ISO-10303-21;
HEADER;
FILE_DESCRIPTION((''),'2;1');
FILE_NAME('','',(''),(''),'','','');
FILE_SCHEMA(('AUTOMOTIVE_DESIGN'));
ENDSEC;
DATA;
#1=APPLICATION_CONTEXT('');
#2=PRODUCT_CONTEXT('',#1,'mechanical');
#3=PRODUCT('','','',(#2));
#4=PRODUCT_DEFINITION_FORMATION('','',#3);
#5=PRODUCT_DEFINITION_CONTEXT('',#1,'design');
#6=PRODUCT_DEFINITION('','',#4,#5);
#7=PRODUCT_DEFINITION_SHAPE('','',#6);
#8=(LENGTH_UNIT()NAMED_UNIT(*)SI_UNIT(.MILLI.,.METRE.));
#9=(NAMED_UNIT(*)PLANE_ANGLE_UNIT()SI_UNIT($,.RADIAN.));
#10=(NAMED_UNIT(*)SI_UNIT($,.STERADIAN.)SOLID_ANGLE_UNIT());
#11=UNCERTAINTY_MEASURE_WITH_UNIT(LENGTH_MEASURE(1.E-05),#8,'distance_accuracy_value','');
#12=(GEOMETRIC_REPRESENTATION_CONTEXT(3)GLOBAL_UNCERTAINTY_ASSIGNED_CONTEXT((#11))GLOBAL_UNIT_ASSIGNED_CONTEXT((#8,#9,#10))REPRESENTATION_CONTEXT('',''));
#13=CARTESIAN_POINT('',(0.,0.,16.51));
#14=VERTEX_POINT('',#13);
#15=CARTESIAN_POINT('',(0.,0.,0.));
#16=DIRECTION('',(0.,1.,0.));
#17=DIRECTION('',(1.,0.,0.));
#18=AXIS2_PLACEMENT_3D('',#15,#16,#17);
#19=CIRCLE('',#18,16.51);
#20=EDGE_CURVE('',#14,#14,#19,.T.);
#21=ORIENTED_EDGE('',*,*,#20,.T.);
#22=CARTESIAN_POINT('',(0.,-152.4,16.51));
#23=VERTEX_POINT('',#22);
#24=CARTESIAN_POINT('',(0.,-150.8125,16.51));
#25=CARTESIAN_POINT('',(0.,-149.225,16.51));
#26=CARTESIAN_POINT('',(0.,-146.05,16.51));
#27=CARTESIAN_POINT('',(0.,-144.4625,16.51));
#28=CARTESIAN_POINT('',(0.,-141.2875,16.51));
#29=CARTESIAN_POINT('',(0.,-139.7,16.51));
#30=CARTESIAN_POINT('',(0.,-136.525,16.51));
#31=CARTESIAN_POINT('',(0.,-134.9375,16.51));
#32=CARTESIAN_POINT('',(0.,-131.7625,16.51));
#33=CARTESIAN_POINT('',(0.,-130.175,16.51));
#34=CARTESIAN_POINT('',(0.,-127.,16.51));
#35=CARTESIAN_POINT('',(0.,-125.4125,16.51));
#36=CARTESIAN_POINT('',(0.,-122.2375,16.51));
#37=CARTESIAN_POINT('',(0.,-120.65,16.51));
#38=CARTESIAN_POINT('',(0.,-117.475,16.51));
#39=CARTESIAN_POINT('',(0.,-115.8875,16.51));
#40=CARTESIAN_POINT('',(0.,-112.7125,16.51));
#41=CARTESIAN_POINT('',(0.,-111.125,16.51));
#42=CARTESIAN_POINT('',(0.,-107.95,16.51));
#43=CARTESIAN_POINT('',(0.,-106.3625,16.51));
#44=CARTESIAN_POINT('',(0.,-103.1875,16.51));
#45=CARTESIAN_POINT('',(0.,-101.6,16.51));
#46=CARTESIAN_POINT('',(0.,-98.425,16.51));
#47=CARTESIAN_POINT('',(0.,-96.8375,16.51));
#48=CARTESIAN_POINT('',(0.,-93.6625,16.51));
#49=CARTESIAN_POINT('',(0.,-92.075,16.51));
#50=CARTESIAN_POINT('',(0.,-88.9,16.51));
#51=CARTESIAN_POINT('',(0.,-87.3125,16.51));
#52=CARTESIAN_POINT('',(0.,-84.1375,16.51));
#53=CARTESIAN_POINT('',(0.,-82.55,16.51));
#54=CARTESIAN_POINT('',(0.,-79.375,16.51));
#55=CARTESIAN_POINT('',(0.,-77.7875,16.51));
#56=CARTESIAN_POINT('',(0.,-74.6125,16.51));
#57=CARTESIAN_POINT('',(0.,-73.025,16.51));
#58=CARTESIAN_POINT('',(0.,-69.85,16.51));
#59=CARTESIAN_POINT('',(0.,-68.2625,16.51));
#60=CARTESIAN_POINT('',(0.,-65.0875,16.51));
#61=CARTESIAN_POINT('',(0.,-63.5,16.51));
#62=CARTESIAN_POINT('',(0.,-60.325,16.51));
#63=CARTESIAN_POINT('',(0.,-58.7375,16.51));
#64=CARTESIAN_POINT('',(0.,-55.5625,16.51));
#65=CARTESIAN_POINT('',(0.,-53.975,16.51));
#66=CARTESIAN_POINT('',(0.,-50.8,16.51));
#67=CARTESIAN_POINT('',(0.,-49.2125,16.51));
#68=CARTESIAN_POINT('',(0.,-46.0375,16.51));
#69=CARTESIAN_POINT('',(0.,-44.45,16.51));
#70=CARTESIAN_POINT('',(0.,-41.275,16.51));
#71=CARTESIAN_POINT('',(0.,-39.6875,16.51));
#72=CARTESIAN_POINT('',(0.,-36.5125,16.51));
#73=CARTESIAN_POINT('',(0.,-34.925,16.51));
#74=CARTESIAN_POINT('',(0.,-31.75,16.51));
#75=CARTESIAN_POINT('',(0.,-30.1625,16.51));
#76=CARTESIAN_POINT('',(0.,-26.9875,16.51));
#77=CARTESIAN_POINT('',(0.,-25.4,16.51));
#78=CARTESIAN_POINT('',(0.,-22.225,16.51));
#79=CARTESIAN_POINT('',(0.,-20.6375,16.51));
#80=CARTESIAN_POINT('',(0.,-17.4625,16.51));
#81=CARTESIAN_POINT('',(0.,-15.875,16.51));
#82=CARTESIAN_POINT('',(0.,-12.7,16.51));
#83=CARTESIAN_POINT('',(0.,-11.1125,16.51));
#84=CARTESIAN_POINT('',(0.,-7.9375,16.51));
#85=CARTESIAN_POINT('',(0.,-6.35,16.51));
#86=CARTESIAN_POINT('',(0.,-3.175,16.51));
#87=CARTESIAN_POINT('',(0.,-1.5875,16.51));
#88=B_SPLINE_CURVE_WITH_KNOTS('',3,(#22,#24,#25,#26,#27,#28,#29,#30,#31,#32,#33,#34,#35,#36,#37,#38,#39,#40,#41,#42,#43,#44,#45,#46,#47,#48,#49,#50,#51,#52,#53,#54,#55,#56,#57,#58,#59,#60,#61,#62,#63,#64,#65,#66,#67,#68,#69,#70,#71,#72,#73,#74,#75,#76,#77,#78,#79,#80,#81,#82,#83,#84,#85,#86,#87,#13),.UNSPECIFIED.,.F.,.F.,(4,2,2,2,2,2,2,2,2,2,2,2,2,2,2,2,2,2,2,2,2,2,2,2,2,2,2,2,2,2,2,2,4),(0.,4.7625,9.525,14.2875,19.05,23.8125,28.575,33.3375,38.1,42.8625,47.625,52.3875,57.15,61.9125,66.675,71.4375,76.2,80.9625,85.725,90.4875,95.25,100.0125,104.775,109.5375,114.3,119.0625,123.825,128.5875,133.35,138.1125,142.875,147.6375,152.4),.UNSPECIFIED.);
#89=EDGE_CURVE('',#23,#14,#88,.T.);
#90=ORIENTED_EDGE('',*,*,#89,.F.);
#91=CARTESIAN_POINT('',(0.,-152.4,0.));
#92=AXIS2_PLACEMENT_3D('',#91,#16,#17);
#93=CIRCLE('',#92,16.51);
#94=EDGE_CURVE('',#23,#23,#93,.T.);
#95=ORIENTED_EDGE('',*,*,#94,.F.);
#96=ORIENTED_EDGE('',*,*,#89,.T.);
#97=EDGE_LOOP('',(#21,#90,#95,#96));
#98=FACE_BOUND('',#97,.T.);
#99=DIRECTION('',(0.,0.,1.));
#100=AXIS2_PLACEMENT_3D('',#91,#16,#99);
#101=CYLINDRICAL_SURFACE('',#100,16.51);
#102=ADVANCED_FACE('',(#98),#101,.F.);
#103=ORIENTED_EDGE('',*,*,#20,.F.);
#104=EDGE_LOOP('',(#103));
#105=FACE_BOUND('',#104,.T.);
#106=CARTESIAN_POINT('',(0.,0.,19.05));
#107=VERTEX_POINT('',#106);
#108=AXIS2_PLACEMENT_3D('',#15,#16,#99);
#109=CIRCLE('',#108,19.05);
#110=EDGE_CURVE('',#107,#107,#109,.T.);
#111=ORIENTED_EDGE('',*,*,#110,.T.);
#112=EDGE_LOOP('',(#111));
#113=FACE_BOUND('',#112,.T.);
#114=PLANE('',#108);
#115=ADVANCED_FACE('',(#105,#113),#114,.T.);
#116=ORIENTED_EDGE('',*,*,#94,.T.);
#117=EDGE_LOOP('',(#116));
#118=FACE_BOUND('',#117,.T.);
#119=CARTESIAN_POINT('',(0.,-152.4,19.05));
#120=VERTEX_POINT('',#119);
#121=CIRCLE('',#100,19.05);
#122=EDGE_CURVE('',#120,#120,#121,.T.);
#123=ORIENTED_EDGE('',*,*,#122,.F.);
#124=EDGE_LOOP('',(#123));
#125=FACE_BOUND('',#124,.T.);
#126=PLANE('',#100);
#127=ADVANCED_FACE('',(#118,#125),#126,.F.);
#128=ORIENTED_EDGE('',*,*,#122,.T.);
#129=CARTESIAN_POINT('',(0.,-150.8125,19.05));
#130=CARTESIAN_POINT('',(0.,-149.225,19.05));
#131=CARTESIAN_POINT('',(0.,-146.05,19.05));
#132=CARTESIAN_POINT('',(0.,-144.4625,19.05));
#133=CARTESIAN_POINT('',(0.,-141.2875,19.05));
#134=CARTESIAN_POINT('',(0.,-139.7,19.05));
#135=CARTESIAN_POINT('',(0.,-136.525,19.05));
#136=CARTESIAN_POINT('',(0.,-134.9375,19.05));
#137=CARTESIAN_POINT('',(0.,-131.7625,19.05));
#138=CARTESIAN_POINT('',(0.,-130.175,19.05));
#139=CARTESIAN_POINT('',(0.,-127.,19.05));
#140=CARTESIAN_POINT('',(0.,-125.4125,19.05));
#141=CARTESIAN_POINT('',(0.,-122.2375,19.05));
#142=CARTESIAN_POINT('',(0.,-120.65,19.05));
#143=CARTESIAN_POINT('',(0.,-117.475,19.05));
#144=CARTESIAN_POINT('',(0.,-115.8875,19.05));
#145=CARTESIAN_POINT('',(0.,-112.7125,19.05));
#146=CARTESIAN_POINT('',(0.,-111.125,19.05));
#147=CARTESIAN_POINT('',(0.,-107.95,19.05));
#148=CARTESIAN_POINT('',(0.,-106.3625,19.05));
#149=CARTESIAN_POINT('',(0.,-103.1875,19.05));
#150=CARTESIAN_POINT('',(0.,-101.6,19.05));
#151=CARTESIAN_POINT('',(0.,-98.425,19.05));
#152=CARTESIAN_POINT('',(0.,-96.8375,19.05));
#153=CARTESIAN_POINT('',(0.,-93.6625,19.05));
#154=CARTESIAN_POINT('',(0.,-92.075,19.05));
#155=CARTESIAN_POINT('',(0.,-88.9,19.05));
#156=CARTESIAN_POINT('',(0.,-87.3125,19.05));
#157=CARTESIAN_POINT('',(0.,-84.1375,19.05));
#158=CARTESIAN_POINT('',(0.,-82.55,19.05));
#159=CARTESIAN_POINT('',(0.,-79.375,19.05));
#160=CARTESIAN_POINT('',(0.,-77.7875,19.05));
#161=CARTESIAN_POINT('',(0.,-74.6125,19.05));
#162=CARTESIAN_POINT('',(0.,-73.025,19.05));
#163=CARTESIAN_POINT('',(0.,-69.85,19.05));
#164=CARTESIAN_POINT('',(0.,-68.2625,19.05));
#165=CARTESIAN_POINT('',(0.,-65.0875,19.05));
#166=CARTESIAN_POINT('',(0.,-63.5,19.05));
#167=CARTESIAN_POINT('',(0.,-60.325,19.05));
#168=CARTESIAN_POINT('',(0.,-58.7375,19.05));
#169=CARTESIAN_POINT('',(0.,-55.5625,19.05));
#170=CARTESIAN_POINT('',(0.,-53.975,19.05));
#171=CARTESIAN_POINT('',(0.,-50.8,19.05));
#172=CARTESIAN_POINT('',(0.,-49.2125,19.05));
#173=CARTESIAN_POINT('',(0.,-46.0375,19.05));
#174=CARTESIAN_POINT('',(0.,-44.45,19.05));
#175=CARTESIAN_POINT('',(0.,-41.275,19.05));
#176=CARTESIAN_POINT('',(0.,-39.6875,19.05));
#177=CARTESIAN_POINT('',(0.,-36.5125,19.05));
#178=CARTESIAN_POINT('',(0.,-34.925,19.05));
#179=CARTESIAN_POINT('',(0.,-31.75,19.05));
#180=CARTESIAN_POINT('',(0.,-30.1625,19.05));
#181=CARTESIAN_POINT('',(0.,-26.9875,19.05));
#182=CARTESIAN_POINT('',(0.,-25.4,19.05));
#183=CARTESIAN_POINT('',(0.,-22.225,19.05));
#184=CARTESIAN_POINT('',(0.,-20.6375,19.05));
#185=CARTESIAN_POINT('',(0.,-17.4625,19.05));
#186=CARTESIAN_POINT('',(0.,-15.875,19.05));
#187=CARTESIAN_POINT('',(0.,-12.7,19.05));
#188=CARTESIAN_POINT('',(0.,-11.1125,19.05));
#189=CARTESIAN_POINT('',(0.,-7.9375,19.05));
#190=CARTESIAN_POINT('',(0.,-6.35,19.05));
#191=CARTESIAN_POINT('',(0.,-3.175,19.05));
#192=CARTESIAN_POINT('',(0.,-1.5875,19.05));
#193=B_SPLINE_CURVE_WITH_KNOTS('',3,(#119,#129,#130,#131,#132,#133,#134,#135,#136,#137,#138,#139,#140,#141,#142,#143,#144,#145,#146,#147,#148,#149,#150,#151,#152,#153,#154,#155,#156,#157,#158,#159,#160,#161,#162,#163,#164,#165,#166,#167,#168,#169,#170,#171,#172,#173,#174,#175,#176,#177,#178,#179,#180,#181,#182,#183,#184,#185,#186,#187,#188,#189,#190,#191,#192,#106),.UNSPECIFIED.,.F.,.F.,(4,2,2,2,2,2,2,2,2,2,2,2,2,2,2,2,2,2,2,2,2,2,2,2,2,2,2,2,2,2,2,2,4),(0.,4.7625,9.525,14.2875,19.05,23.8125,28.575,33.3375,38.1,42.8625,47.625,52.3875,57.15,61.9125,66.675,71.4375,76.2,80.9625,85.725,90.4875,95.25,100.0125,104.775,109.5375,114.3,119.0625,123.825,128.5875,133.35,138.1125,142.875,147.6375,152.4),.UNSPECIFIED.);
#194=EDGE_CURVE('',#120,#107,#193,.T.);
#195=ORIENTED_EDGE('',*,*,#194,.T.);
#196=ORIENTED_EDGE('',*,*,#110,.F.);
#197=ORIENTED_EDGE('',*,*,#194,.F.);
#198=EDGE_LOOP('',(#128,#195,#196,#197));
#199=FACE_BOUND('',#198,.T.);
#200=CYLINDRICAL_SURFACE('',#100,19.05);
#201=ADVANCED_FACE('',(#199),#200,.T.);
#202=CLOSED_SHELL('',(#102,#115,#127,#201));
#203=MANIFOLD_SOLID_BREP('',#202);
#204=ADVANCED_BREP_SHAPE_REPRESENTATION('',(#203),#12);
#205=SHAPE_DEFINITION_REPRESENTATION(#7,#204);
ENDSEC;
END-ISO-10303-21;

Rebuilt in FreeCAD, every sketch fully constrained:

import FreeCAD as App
import Part
import Sketcher

V = App.Vector
Q = App.Units.Quantity

doc = App.newDocument("Part")
body = doc.addObject("PartDesign::Body", "Body")

sketch1 = body.newObject("Sketcher::SketchObject", "Sketch")
sketch1.AttachmentSupport = (doc.getObject("XZ_Plane"), [""])
sketch1.MapMode = "FlatFace"
sketch1.addGeometry(Part.Circle(V(0, 0, 0), V(0, 0, 1), 19), False)
sketch1.addGeometry(Part.Circle(V(0, 0, 0), V(0, 0, 1), 17), False)
sketch1.addConstraint(Sketcher.Constraint("Coincident", 0, 3, -1, 1))
sketch1.addConstraint(Sketcher.Constraint("Coincident", 1, 3, -1, 1))
sketch1.addConstraint(Sketcher.Constraint("Diameter", 0, Q("1.5 in")))
sketch1.addConstraint(Sketcher.Constraint("Diameter", 1, Q("1.3 in")))
pad1 = body.newObject("PartDesign::Pad", "Pad")
pad1.Profile = sketch1
pad1.Length = Q("6 in")

doc.recompute()
